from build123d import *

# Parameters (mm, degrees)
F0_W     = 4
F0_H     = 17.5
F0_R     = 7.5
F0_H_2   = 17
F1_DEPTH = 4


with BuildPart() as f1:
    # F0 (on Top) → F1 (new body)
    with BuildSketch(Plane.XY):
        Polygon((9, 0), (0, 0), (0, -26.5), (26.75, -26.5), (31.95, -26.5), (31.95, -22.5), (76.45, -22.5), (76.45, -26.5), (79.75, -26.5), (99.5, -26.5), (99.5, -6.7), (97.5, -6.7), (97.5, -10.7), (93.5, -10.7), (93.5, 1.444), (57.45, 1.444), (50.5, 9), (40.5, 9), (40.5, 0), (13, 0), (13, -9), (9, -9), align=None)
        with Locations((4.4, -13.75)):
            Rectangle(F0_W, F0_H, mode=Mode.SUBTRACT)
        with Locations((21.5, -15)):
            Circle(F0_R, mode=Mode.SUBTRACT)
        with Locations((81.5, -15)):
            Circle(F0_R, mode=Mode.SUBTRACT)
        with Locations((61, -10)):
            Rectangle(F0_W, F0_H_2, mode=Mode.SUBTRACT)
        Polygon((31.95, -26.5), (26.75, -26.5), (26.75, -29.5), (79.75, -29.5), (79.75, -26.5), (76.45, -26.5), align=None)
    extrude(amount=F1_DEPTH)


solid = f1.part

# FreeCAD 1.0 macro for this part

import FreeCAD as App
import Part
import Sketcher
Q = App.Units.Quantity


def add_polygon(sketch, points):
    """Adds a closed chain of lines whose ends are joined by coincident constraints."""
    first, n = sketch.GeometryCount, len(points)
    for a, b in zip(points, points[1:] + points[:1]):
        sketch.addGeometry(Part.LineSegment(App.Vector(*a, 0), App.Vector(*b, 0)), False)
    for i in range(n):
        sketch.addConstraint(Sketcher.Constraint("Coincident", first + i, 2, first + (i + 1) % n, 1))

doc = App.newDocument("Part")
body = doc.addObject("PartDesign::Body", "Body")

sketch1 = body.newObject("Sketcher::SketchObject", "Sketch")
sketch1.AttachmentSupport = (doc.getObject("XY_Plane"), [""])
sketch1.MapMode = "FlatFace"
add_polygon(sketch1, [(9, 0), (0, 0), (0, -26.5), (26.8, -26.5), (26.8, -29.5), (79.8, -29.5), (79.8, -26.5), (99.5, -26.5), (99.5, -6.7), (97.5, -6.7), (97.5, -10.7), (93.5, -10.7), (93.5, 1.4), (57.5, 1.4), (50.5, 9), (40.5, 9), (40.5, 0), (13, 0), (13, -9), (9, -9)])
add_polygon(sketch1, [(31.9, -26.5), (31.9, -22.5), (76.5, -22.5), (76.5, -26.5)])
sketch1.addGeometry(Part.Circle(App.Vector(21.5, -15, 0), App.Vector(0, 0, 1), 7.5), False)
add_polygon(sketch1, [(6.4, -22.5), (2.4, -22.5), (2.4, -5), (6.4, -5)])
sketch1.addGeometry(Part.Circle(App.Vector(81.5, -15, 0), App.Vector(0, 0, 1), 7.5), False)
add_polygon(sketch1, [(63, -18.5), (59, -18.5), (59, -1.5), (63, -1.5)])
sketch1.addConstraint([
    Sketcher.Constraint("Horizontal", 0),
    Sketcher.Constraint("Vertical", 1),
    Sketcher.Constraint("Horizontal", 2),
    Sketcher.Constraint("Vertical", 3),
    Sketcher.Constraint("Horizontal", 4),
    Sketcher.Constraint("Vertical", 5),
    Sketcher.Constraint("Horizontal", 6),
    Sketcher.Constraint("Vertical", 7),
    Sketcher.Constraint("Horizontal", 8),
    Sketcher.Constraint("Vertical", 9),
    Sketcher.Constraint("Horizontal", 10),
    Sketcher.Constraint("Vertical", 11),
    Sketcher.Constraint("Horizontal", 12),
    Sketcher.Constraint("Horizontal", 14),
    Sketcher.Constraint("Vertical", 15),
    Sketcher.Constraint("Horizontal", 16),
    Sketcher.Constraint("Vertical", 17),
    Sketcher.Constraint("Horizontal", 18),
    Sketcher.Constraint("Vertical", 19),
    Sketcher.Constraint("Vertical", 20),
    Sketcher.Constraint("Horizontal", 21),
    Sketcher.Constraint("Vertical", 22),
    Sketcher.Constraint("Horizontal", 23),
    Sketcher.Constraint("Horizontal", 25),
    Sketcher.Constraint("Vertical", 26),
    Sketcher.Constraint("Horizontal", 27),
    Sketcher.Constraint("Vertical", 28),
    Sketcher.Constraint("Horizontal", 30),
    Sketcher.Constraint("Vertical", 31),
    Sketcher.Constraint("Horizontal", 32),
    Sketcher.Constraint("Vertical", 33),
    Sketcher.Constraint("Coincident", 0, 2, -1, 1),
    Sketcher.Constraint("Equal", 24, 29),
    Sketcher.Constraint("PointOnObject", 15, 2, -1),
    Sketcher.Constraint("Horizontal", 24, 3, 29, 3),
    Sketcher.Constraint("Horizontal", 2, 2, 5, 2),
    Sketcher.Constraint("Horizontal", 6, 2, 22, 2),
    Sketcher.Constraint("Horizontal", 21, 2, 25, 2),
    Sketcher.Constraint("Equal", 10, 18),
    Sketcher.Constraint("Equal", 18, 25),
    Sketcher.Constraint("Equal", 27, 30),
    Sketcher.Constraint("Equal", 32, 9),
    Sketcher.Constraint("Equal", 0, 15),
    Sketcher.Constraint("Equal", 15, 17),
    Sketcher.Constraint("Equal", 9, 20),
    Sketcher.Constraint("Diameter", 24, Q("15 mm")),
    Sketcher.Constraint("DistanceX", 0, 2, 0, 1, Q("9 mm")),
    Sketcher.Constraint("DistanceX", 4, 1, 4, 2, Q("53 mm")),
    Sketcher.Constraint("DistanceX", 8, 2, 8, 1, Q("2 mm")),
    Sketcher.Constraint("DistanceX", 10, 2, 10, 1, Q("4 mm")),
    Sketcher.Constraint("DistanceX", 14, 2, 14, 1, Q("10 mm")),
    Sketcher.Constraint("DistanceY", 3, 2, 3, 1, Q("3 mm")),
    Sketcher.Constraint("DistanceY", 31, 1, 31, 2, Q("17 mm")),
    Sketcher.Constraint("DistanceX", 16, 2, 16, 1, Q("27.5 mm")),
    Sketcher.Constraint("DistanceX", 21, 1, 21, 2, Q("44.5 mm")),
    Sketcher.Constraint("DistanceY", 1, 2, 1, 1, Q("26.5 mm")),
    Sketcher.Constraint("DistanceY", 7, 1, 7, 2, Q("19.8 mm")),
    Sketcher.Constraint("DistanceY", 26, 1, 26, 2, Q("17.5 mm")),
    Sketcher.Constraint("DistanceY", 24, 3, -1, 1, Q("15 mm")),
    Sketcher.Constraint("DistanceX", -1, 1, 30, 2, Q("59 mm")),
    Sketcher.Constraint("DistanceX", 24, 3, 29, 3, Q("60 mm")),
    Sketcher.Constraint("DistanceX", 29, 3, 6, 2, Q("18 mm")),
    Sketcher.Constraint("DistanceX", 24, 3, 13, 2, Q("29 mm")),
    Sketcher.Constraint("DistanceY", 21, 2, 30, 2, Q("4 mm")),
    Sketcher.Constraint("DistanceX", 2, 1, 2, 2, Q("26.75 mm")),
    Sketcher.Constraint("DistanceX", 12, 2, 12, 1, Q("36.05 mm")),
    Sketcher.Constraint("DistanceX", -1, 1, 25, 2, Q("2.4 mm")),
    Sketcher.Constraint("DistanceX", 2, 2, 20, 2, Q("5.2 mm")),
    Sketcher.Constraint("DistanceY", 11, 1, 11, 2, Q("12.144 mm")),
])
pad1 = body.newObject("PartDesign::Pad", "Pad")
pad1.Profile = sketch1
pad1.Length = 4

doc.recompute()
